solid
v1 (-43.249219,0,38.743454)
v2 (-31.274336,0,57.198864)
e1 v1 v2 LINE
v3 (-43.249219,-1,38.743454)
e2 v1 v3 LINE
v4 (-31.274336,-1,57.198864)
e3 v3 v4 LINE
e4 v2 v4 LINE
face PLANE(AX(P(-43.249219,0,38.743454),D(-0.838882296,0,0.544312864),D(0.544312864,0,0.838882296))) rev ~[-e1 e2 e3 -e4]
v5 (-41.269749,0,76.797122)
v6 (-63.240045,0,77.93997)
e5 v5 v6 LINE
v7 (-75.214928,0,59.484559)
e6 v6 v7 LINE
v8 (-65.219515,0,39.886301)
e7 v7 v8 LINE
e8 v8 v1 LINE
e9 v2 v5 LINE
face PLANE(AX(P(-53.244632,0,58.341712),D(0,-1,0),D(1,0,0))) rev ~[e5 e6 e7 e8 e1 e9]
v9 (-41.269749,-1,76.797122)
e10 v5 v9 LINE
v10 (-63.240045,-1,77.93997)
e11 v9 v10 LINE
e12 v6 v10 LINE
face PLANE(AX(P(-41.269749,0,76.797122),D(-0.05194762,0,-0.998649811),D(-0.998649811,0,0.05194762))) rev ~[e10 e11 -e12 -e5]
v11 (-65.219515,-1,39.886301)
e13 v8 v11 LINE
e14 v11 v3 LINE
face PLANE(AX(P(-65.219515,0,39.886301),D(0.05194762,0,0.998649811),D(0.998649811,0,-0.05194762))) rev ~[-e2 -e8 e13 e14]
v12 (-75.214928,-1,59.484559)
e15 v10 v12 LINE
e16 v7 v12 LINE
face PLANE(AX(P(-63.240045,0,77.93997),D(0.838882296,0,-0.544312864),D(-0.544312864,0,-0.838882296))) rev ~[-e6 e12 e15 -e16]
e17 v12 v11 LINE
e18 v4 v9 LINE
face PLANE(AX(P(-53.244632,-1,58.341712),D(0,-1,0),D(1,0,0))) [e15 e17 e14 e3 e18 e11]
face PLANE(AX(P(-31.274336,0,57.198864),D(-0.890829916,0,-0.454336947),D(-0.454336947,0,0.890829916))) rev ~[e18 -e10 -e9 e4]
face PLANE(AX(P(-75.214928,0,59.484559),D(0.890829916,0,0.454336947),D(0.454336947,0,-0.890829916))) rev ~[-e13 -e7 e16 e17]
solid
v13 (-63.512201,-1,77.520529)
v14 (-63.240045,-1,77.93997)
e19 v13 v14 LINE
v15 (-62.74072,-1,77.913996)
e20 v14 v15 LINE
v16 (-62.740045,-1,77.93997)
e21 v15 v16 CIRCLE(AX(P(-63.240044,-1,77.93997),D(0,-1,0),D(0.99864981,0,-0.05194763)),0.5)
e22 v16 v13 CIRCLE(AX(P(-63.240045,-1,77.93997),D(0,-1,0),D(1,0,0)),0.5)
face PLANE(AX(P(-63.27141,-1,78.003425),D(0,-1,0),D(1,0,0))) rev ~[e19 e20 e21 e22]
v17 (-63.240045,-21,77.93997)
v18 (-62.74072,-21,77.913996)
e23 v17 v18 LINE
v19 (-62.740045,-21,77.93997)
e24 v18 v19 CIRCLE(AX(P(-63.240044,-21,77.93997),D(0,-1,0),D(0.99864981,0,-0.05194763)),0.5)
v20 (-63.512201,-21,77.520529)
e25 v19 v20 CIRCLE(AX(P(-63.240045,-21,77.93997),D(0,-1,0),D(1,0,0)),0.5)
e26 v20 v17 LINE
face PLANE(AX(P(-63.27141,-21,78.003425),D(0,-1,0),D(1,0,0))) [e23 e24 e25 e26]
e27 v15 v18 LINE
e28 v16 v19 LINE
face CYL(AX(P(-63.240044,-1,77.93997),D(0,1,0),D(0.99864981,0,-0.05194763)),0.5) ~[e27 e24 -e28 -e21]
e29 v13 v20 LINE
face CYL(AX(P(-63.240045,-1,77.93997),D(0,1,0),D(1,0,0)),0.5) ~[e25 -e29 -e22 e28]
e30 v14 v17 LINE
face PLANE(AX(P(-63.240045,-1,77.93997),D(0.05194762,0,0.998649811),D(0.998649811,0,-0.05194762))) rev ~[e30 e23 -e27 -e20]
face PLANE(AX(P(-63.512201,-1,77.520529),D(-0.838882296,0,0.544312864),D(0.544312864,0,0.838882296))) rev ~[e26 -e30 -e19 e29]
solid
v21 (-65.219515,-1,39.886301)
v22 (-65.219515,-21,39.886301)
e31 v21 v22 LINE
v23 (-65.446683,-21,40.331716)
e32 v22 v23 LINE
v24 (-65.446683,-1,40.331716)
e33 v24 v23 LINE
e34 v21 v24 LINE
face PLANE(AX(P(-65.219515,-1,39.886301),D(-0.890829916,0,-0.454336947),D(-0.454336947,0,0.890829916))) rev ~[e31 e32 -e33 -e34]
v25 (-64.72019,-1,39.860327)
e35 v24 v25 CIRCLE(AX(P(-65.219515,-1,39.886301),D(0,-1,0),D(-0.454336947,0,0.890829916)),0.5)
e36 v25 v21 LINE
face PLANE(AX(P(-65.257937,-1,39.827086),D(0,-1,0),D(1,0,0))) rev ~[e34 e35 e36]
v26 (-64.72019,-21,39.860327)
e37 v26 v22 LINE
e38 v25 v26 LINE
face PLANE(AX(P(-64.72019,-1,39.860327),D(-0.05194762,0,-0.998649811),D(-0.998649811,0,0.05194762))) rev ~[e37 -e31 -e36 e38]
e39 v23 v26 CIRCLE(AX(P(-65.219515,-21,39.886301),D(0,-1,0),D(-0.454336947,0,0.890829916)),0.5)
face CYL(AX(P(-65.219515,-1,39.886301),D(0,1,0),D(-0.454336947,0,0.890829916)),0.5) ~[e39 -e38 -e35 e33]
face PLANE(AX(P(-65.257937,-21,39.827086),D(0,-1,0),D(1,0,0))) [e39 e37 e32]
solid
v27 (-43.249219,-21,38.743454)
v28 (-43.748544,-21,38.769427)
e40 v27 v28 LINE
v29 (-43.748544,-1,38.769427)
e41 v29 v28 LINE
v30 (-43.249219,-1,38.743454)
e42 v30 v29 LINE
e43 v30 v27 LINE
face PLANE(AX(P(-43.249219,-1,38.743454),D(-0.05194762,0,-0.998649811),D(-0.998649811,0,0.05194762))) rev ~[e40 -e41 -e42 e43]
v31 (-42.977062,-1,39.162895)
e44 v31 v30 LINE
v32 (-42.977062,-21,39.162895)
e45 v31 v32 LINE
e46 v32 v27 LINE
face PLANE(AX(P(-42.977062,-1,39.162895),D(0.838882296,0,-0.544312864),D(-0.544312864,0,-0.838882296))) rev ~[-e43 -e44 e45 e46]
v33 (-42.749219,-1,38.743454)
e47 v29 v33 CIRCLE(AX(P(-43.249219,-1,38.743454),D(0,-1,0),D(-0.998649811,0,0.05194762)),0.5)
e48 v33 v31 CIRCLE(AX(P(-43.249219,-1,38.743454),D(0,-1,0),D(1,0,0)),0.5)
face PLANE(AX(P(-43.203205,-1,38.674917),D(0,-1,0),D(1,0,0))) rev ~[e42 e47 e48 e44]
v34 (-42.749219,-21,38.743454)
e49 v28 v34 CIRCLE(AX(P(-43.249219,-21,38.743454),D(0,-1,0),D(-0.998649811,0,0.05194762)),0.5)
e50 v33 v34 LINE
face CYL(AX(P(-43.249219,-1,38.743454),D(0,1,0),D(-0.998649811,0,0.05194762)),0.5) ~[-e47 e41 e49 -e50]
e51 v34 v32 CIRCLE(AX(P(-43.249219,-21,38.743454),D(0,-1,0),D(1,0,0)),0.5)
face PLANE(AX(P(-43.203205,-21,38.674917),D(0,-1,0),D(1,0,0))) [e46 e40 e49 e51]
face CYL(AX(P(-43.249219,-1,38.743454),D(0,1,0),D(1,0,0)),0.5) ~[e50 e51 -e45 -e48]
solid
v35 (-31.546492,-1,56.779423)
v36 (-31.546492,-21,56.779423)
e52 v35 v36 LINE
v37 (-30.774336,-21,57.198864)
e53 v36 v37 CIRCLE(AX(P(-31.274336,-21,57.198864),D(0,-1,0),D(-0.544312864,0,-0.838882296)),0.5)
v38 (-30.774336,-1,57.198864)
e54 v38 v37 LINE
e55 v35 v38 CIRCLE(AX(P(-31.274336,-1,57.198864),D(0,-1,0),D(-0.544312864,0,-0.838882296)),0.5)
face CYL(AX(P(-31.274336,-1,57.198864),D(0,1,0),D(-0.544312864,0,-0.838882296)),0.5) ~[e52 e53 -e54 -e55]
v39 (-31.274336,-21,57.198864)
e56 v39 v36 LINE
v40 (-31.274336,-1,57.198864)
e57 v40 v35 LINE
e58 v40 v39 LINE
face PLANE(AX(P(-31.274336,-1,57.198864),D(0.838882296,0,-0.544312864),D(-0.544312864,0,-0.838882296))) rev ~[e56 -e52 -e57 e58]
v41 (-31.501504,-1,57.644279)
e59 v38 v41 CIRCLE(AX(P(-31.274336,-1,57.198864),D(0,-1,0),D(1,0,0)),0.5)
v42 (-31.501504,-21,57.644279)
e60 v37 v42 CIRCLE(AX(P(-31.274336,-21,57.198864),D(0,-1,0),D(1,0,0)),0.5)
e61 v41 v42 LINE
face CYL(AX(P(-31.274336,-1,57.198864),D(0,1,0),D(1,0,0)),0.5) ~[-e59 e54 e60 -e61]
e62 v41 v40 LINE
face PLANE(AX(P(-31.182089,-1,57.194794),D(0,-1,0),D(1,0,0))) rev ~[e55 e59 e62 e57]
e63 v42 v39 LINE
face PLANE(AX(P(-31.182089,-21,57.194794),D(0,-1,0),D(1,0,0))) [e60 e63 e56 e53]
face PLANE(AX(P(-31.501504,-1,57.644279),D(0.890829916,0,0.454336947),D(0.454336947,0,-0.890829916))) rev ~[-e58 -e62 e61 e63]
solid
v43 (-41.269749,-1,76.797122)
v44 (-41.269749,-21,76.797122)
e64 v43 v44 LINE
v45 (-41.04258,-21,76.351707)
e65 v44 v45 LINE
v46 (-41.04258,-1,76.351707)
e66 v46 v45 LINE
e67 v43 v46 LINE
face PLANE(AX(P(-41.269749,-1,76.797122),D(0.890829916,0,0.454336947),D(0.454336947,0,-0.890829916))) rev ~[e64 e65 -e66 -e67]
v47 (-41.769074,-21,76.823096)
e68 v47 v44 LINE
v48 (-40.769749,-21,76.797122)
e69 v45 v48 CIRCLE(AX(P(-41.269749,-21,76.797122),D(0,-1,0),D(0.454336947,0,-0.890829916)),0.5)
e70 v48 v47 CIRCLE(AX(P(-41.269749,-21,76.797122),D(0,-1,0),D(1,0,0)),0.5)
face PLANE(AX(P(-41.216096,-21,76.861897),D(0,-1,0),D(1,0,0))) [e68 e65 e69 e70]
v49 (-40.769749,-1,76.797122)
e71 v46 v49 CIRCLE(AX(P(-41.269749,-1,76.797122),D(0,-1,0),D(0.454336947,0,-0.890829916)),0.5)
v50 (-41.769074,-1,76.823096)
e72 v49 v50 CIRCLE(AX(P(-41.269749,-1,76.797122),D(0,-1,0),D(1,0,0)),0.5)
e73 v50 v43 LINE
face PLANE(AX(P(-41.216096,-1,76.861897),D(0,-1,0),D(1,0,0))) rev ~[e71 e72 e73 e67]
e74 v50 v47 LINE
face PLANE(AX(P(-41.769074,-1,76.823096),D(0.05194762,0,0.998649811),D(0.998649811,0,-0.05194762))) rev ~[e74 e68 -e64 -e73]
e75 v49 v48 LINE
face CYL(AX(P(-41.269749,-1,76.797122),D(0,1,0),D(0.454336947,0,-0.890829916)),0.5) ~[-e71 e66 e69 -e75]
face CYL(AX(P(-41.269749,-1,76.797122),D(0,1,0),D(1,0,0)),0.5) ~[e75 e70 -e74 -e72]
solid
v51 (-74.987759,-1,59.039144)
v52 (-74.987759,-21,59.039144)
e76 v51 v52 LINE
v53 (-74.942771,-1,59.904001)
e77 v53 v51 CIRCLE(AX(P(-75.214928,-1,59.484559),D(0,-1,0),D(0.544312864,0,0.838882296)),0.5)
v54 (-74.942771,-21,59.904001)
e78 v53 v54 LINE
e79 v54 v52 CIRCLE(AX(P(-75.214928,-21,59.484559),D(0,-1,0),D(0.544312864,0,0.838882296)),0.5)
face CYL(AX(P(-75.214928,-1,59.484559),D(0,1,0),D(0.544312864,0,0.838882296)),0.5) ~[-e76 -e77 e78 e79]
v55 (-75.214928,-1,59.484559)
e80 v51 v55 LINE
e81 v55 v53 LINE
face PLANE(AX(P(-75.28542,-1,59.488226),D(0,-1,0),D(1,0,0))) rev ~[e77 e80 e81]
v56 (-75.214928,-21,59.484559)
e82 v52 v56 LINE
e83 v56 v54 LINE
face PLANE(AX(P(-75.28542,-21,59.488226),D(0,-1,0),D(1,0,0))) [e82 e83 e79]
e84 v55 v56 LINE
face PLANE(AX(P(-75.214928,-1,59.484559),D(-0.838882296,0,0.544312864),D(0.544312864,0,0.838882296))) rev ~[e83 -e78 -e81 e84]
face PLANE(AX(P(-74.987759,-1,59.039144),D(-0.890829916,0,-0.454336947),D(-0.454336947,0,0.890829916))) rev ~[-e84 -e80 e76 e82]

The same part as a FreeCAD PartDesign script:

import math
import FreeCAD as App
import Part
import Sketcher

V = App.Vector

doc = App.newDocument("Part")
body = doc.addObject("PartDesign::Body", "Body")

# Sketch on XZ plane
sketch1 = body.newObject("Sketcher::SketchObject", "Sketch")
sketch1.AttachmentSupport = (doc.getObject("XZ_Plane"), [""])
sketch1.MapMode = "FlatFace"
sketch1.addGeometry(Part.LineSegment(V(-43, 39, 0), V(-31, 57, 0)), False)
sketch1.addGeometry(Part.LineSegment(V(-31, 57, 0), V(-41, 77, 0)), False)
sketch1.addGeometry(Part.LineSegment(V(-41, 77, 0), V(-63, 78, 0)), False)
sketch1.addGeometry(Part.LineSegment(V(-63, 78, 0), V(-75, 59, 0)), False)
sketch1.addGeometry(Part.LineSegment(V(-75, 59, 0), V(-65, 40, 0)), False)
sketch1.addGeometry(Part.LineSegment(V(-65, 40, 0), V(-43, 39, 0)), False)
sketch1.addConstraint(Sketcher.Constraint("Coincident", 0, 2, 1, 1))
sketch1.addConstraint(Sketcher.Constraint("Coincident", 1, 2, 2, 1))
sketch1.addConstraint(Sketcher.Constraint("Coincident", 2, 2, 3, 1))
sketch1.addConstraint(Sketcher.Constraint("Coincident", 3, 2, 4, 1))
sketch1.addConstraint(Sketcher.Constraint("Coincident", 4, 2, 5, 1))
sketch1.addConstraint(Sketcher.Constraint("Coincident", 5, 2, 0, 1))
sketch1.addConstraint(Sketcher.Constraint("Parallel", 0, 3))
sketch1.addConstraint(Sketcher.Constraint("Parallel", 1, 4))
sketch1.addConstraint(Sketcher.Constraint("Parallel", 2, 5))
sketch1.addConstraint(Sketcher.Constraint("Equal", 0, 1))
sketch1.addConstraint(Sketcher.Constraint("Equal", 1, 2))
sketch1.addConstraint(Sketcher.Constraint("Equal", 2, 3))
sketch1.addConstraint(Sketcher.Constraint("Distance", 0, 22.0))
sketch1.addConstraint(Sketcher.Constraint("DistanceY", -1, 1, 4, 2, 39.886301))
sketch1.addConstraint(Sketcher.Constraint("DistanceX", 1, 2, -1, 1, 41.269749))
sketch1.addConstraint(Sketcher.Constraint("DistanceY", -1, 1, 2, 2, 77.93997))
sketch1.addConstraint(Sketcher.Constraint("DistanceY", -1, 1, 3, 2, 59.484559))
sketch1.addConstraint(Sketcher.Constraint("DistanceX", 2, 2, 0, 2, 31.965709))
pad1 = body.newObject("PartDesign::Pad", "Pad")
pad1.Profile = sketch1
pad1.Length = 1
body2 = doc.addObject("PartDesign::Body", "Body001")

# Sketch on XZ plane
sketch2 = body2.newObject("Sketcher::SketchObject", "Sketch001")
sketch2.AttachmentSupport = (doc.getObject("XZ_Plane001"), [""])
sketch2.MapMode = "FlatFace"
sketch2.AttachmentOffset = App.Placement(V(0, 0, 1), App.Rotation())
sketch2.addGeometry(Part.ArcOfCircle(Part.Circle(V(-63.24, 77.94, 0), V(0, 0, 1), 0.5), math.radians(-2.98), math.radians(0)), False)
sketch2.addGeometry(Part.ArcOfCircle(Part.Circle(V(-63.24, 77.94, 0), V(0, 0, 1), 0.5), math.radians(0), math.radians(237)), False)
sketch2.addGeometry(Part.LineSegment(V(-63.512, 77.521, 0), V(-63.24, 77.94, 0)), False)
sketch2.addGeometry(Part.LineSegment(V(-63.24, 77.94, 0), V(-62.741, 77.914, 0)), False)
sketch2.addConstraint(Sketcher.Constraint("Tangent", 0, 2, 1, 1))
sketch2.addConstraint(Sketcher.Constraint("Coincident", 1, 2, 2, 1))
sketch2.addConstraint(Sketcher.Constraint("Coincident", 2, 2, 3, 1))
sketch2.addConstraint(Sketcher.Constraint("Coincident", 3, 2, 0, 1))
sketch2.addConstraint(Sketcher.Constraint("Coincident", 2, 2, 0, 3))
sketch2.addConstraint(Sketcher.Constraint("Equal", 0, 1))
sketch2.addConstraint(Sketcher.Constraint("Horizontal", 1, 3, 0, 2))
sketch2.addConstraint(Sketcher.Constraint("Radius", 0, 0.5))
sketch2.addConstraint(Sketcher.Constraint("DistanceX", 1, 2, -1, 1, 63.512201))
sketch2.addConstraint(Sketcher.Constraint("DistanceY", -1, 1, 0, 3, 77.93997))
sketch2.addConstraint(Sketcher.Constraint("DistanceY", -1, 1, 1, 2, 77.520529))
sketch2.addConstraint(Sketcher.Constraint("DistanceX", 3, 2, -1, 1, 62.74072))
pad2 = body2.newObject("PartDesign::Pad", "Pad001")
pad2.Profile = sketch2
pad2.Length = 20
body3 = doc.addObject("PartDesign::Body", "Body002")

# Sketch on XZ plane
sketch3 = body3.newObject("Sketcher::SketchObject", "Sketch002")
sketch3.AttachmentSupport = (doc.getObject("XZ_Plane002"), [""])
sketch3.MapMode = "FlatFace"
sketch3.AttachmentOffset = App.Placement(V(0, 0, 1), App.Rotation())
sketch3.addGeometry(Part.ArcOfCircle(Part.Circle(V(-41.27, 76.8, 0), V(0, 0, 1), 0.5), math.radians(0), math.radians(177)), False)
sketch3.addGeometry(Part.LineSegment(V(-41.77, 76.82, 0), V(-41.27, 76.8, 0)), False)
sketch3.addGeometry(Part.LineSegment(V(-41.27, 76.8, 0), V(-41.04, 76.35, 0)), False)
sketch3.addGeometry(Part.ArcOfCircle(Part.Circle(V(-41.27, 76.8, 0), V(0, 0, 1), 0.5), math.radians(-63), math.radians(0)), False)
sketch3.addConstraint(Sketcher.Constraint("Coincident", 0, 2, 1, 1))
sketch3.addConstraint(Sketcher.Constraint("Coincident", 1, 2, 2, 1))
sketch3.addConstraint(Sketcher.Constraint("Coincident", 2, 2, 3, 1))
sketch3.addConstraint(Sketcher.Constraint("Tangent", 3, 2, 0, 1))
sketch3.addConstraint(Sketcher.Constraint("Coincident", 1, 2, 0, 3))
sketch3.addConstraint(Sketcher.Constraint("Equal", 0, 3))
sketch3.addConstraint(Sketcher.Constraint("Horizontal", 1, 2, 3, 2))
sketch3.addConstraint(Sketcher.Constraint("Radius", 0, 0.5))
sketch3.addConstraint(Sketcher.Constraint("DistanceX", 0, 3, -1, 1, 41.269749))
sketch3.addConstraint(Sketcher.Constraint("DistanceX", 2, 2, -1, 1, 41.04258))
sketch3.addConstraint(Sketcher.Constraint("DistanceY", 2, 2, 0, 2, 0.471389))
sketch3.addConstraint(Sketcher.Constraint("DistanceY", -1, 1, 0, 3, 76.797122))
pad3 = body3.newObject("PartDesign::Pad", "Pad002")
pad3.Profile = sketch3
pad3.Length = 20
body4 = doc.addObject("PartDesign::Body", "Body003")

# Sketch on XZ plane
sketch4 = body4.newObject("Sketcher::SketchObject", "Sketch003")
sketch4.AttachmentSupport = (doc.getObject("XZ_Plane003"), [""])
sketch4.MapMode = "FlatFace"
sketch4.AttachmentOffset = App.Placement(V(0, 0, 1), App.Rotation())
sketch4.addGeometry(Part.ArcOfCircle(Part.Circle(V(-31.3, 57.2, 0), V(0, 0, 1), 0.5), math.radians(0), math.radians(117)), False)
sketch4.addGeometry(Part.LineSegment(V(-31.5, 57.6, 0), V(-31.3, 57.2, 0)), False)
sketch4.addGeometry(Part.LineSegment(V(-31.3, 57.2, 0), V(-31.5, 56.8, 0)), False)
sketch4.addGeometry(Part.ArcOfCircle(Part.Circle(V(-31.3, 57.2, 0), V(0, 0, 1), 0.5), math.radians(-123), math.radians(0)), False)
sketch4.addConstraint(Sketcher.Constraint("Coincident", 0, 2, 1, 1))
sketch4.addConstraint(Sketcher.Constraint("Coincident", 1, 2, 2, 1))
sketch4.addConstraint(Sketcher.Constraint("Coincident", 2, 2, 3, 1))
sketch4.addConstraint(Sketcher.Constraint("Tangent", 3, 2, 0, 1))
sketch4.addConstraint(Sketcher.Constraint("Coincident", 1, 2, 0, 3))
sketch4.addConstraint(Sketcher.Constraint("Equal", 0, 3))
sketch4.addConstraint(Sketcher.Constraint("Horizontal", 1, 2, 3, 2))
sketch4.addConstraint(Sketcher.Constraint("Radius", 0, 0.5))
sketch4.addConstraint(Sketcher.Constraint("DistanceY", -1, 1, 0, 2, 57.644279))
sketch4.addConstraint(Sketcher.Constraint("DistanceX", 0, 2, 0, 3, 0.227168))
sketch4.addConstraint(Sketcher.Constraint("DistanceY", 2, 2, 0, 3, 0.419441))
sketch4.addConstraint(Sketcher.Constraint("DistanceX", 0, 3, -1, 1, 31.274336))
pad4 = body4.newObject("PartDesign::Pad", "Pad003")
pad4.Profile = sketch4
pad4.Length = 20
body5 = doc.addObject("PartDesign::Body", "Body004")

# Sketch on XZ plane
sketch5 = body5.newObject("Sketcher::SketchObject", "Sketch004")
sketch5.AttachmentSupport = (doc.getObject("XZ_Plane004"), [""])
sketch5.MapMode = "FlatFace"
sketch5.AttachmentOffset = App.Placement(V(0, 0, 1), App.Rotation())
sketch5.addGeometry(Part.LineSegment(V(-43.25, 38.74, 0), V(-43.75, 38.77, 0)), False)
sketch5.addGeometry(Part.ArcOfCircle(Part.Circle(V(-43.25, 38.74, 0), V(0, 0, 1), 0.5), math.radians(177), math.radians(360)), False)
sketch5.addGeometry(Part.ArcOfCircle(Part.Circle(V(-43.25, 38.74, 0), V(0, 0, 1), 0.5), math.radians(0), math.radians(57)), False)
sketch5.addGeometry(Part.LineSegment(V(-42.98, 39.16, 0), V(-43.25, 38.74, 0)), False)
sketch5.addConstraint(Sketcher.Constraint("Coincident", 0, 2, 1, 1))
sketch5.addConstraint(Sketcher.Constraint("Tangent", 1, 2, 2, 1))
sketch5.addConstraint(Sketcher.Constraint("Coincident", 2, 2, 3, 1))
sketch5.addConstraint(Sketcher.Constraint("Coincident", 3, 2, 0, 1))
sketch5.addConstraint(Sketcher.Constraint("Coincident", 3, 2, 1, 3))
sketch5.addConstraint(Sketcher.Constraint("Equal", 1, 2))
sketch5.addConstraint(Sketcher.Constraint("Horizontal", 2, 3, 1, 2))
sketch5.addConstraint(Sketcher.Constraint("Radius", 1, 0.5))
sketch5.addConstraint(Sketcher.Constraint("DistanceX", 1, 3, -1, 1, 43.249219))
sketch5.addConstraint(Sketcher.Constraint("DistanceY", 1, 2, 2, 2, 0.419441))
sketch5.addConstraint(Sketcher.Constraint("DistanceX", 0, 2, 2, 2, 0.771481))
sketch5.addConstraint(Sketcher.Constraint("DistanceY", -1, 1, 1, 3, 38.743454))
pad5 = body5.newObject("PartDesign::Pad", "Pad004")
pad5.Profile = sketch5
pad5.Length = 20
body6 = doc.addObject("PartDesign::Body", "Body005")

# Sketch on XZ plane
sketch6 = body6.newObject("Sketcher::SketchObject", "Sketch005")
sketch6.AttachmentSupport = (doc.getObject("XZ_Plane005"), [""])
sketch6.MapMode = "FlatFace"
sketch6.AttachmentOffset = App.Placement(V(0, 0, 1), App.Rotation())
sketch6.addGeometry(Part.LineSegment(V(-65.22, 39.89, 0), V(-65.45, 40.33, 0)), False)
sketch6.addGeometry(Part.ArcOfCircle(Part.Circle(V(-65.22, 39.89, 0), V(0, 0, 1), 0.5), math.radians(117), math.radians(357)), False)
sketch6.addGeometry(Part.LineSegment(V(-64.72, 39.86, 0), V(-65.22, 39.89, 0)), False)
sketch6.addConstraint(Sketcher.Constraint("Coincident", 0, 2, 1, 1))
sketch6.addConstraint(Sketcher.Constraint("Coincident", 1, 2, 2, 1))
sketch6.addConstraint(Sketcher.Constraint("Coincident", 2, 2, 0, 1))
sketch6.addConstraint(Sketcher.Constraint("Coincident", 2, 2, 1, 3))
sketch6.addConstraint(Sketcher.Constraint("Radius", 1, 0.5))
sketch6.addConstraint(Sketcher.Constraint("DistanceY", -1, 1, 1, 3, 39.886301))
sketch6.addConstraint(Sketcher.Constraint("DistanceX", 1, 2, -1, 1, 64.72019))
sketch6.addConstraint(Sketcher.Constraint("DistanceX", 0, 2, 1, 3, 0.227168))
sketch6.addConstraint(Sketcher.Constraint("DistanceY", 1, 2, 0, 2, 0.471389))
pad6 = body6.newObject("PartDesign::Pad", "Pad005")
pad6.Profile = sketch6
pad6.Length = 20
body7 = doc.addObject("PartDesign::Body", "Body006")

# Sketch on XZ plane
sketch7 = body7.newObject("Sketcher::SketchObject", "Sketch006")
sketch7.AttachmentSupport = (doc.getObject("XZ_Plane006"), [""])
sketch7.MapMode = "FlatFace"
sketch7.AttachmentOffset = App.Placement(V(0, 0, 1), App.Rotation())
sketch7.addGeometry(Part.LineSegment(V(-75.21, 59.48, 0), V(-74.94, 59.9, 0)), False)
sketch7.addGeometry(Part.ArcOfCircle(Part.Circle(V(-75.21, 59.48, 0), V(0, 0, 1), 0.5), math.radians(57), math.radians(297)), False)
sketch7.addGeometry(Part.LineSegment(V(-74.99, 59.04, 0), V(-75.21, 59.48, 0)), False)
sketch7.addConstraint(Sketcher.Constraint("Coincident", 0, 2, 1, 1))
sketch7.addConstraint(Sketcher.Constraint("Coincident", 1, 2, 2, 1))
sketch7.addConstraint(Sketcher.Constraint("Coincident", 2, 2, 0, 1))
sketch7.addConstraint(Sketcher.Constraint("Coincident", 2, 2, 1, 3))
sketch7.addConstraint(Sketcher.Constraint("Radius", 1, 0.5))
sketch7.addConstraint(Sketcher.Constraint("DistanceY", -1, 1, 0, 2, 59.904001))
sketch7.addConstraint(Sketcher.Constraint("DistanceY", -1, 1, 1, 3, 59.484559))
sketch7.addConstraint(Sketcher.Constraint("DistanceX", 0, 2, -1, 1, 74.942771))
sketch7.addConstraint(Sketcher.Constraint("DistanceX", 1, 2, -1, 1, 74.987759))
pad7 = body7.newObject("PartDesign::Pad", "Pad006")
pad7.Profile = sketch7
pad7.Length = 20

doc.recompute()
